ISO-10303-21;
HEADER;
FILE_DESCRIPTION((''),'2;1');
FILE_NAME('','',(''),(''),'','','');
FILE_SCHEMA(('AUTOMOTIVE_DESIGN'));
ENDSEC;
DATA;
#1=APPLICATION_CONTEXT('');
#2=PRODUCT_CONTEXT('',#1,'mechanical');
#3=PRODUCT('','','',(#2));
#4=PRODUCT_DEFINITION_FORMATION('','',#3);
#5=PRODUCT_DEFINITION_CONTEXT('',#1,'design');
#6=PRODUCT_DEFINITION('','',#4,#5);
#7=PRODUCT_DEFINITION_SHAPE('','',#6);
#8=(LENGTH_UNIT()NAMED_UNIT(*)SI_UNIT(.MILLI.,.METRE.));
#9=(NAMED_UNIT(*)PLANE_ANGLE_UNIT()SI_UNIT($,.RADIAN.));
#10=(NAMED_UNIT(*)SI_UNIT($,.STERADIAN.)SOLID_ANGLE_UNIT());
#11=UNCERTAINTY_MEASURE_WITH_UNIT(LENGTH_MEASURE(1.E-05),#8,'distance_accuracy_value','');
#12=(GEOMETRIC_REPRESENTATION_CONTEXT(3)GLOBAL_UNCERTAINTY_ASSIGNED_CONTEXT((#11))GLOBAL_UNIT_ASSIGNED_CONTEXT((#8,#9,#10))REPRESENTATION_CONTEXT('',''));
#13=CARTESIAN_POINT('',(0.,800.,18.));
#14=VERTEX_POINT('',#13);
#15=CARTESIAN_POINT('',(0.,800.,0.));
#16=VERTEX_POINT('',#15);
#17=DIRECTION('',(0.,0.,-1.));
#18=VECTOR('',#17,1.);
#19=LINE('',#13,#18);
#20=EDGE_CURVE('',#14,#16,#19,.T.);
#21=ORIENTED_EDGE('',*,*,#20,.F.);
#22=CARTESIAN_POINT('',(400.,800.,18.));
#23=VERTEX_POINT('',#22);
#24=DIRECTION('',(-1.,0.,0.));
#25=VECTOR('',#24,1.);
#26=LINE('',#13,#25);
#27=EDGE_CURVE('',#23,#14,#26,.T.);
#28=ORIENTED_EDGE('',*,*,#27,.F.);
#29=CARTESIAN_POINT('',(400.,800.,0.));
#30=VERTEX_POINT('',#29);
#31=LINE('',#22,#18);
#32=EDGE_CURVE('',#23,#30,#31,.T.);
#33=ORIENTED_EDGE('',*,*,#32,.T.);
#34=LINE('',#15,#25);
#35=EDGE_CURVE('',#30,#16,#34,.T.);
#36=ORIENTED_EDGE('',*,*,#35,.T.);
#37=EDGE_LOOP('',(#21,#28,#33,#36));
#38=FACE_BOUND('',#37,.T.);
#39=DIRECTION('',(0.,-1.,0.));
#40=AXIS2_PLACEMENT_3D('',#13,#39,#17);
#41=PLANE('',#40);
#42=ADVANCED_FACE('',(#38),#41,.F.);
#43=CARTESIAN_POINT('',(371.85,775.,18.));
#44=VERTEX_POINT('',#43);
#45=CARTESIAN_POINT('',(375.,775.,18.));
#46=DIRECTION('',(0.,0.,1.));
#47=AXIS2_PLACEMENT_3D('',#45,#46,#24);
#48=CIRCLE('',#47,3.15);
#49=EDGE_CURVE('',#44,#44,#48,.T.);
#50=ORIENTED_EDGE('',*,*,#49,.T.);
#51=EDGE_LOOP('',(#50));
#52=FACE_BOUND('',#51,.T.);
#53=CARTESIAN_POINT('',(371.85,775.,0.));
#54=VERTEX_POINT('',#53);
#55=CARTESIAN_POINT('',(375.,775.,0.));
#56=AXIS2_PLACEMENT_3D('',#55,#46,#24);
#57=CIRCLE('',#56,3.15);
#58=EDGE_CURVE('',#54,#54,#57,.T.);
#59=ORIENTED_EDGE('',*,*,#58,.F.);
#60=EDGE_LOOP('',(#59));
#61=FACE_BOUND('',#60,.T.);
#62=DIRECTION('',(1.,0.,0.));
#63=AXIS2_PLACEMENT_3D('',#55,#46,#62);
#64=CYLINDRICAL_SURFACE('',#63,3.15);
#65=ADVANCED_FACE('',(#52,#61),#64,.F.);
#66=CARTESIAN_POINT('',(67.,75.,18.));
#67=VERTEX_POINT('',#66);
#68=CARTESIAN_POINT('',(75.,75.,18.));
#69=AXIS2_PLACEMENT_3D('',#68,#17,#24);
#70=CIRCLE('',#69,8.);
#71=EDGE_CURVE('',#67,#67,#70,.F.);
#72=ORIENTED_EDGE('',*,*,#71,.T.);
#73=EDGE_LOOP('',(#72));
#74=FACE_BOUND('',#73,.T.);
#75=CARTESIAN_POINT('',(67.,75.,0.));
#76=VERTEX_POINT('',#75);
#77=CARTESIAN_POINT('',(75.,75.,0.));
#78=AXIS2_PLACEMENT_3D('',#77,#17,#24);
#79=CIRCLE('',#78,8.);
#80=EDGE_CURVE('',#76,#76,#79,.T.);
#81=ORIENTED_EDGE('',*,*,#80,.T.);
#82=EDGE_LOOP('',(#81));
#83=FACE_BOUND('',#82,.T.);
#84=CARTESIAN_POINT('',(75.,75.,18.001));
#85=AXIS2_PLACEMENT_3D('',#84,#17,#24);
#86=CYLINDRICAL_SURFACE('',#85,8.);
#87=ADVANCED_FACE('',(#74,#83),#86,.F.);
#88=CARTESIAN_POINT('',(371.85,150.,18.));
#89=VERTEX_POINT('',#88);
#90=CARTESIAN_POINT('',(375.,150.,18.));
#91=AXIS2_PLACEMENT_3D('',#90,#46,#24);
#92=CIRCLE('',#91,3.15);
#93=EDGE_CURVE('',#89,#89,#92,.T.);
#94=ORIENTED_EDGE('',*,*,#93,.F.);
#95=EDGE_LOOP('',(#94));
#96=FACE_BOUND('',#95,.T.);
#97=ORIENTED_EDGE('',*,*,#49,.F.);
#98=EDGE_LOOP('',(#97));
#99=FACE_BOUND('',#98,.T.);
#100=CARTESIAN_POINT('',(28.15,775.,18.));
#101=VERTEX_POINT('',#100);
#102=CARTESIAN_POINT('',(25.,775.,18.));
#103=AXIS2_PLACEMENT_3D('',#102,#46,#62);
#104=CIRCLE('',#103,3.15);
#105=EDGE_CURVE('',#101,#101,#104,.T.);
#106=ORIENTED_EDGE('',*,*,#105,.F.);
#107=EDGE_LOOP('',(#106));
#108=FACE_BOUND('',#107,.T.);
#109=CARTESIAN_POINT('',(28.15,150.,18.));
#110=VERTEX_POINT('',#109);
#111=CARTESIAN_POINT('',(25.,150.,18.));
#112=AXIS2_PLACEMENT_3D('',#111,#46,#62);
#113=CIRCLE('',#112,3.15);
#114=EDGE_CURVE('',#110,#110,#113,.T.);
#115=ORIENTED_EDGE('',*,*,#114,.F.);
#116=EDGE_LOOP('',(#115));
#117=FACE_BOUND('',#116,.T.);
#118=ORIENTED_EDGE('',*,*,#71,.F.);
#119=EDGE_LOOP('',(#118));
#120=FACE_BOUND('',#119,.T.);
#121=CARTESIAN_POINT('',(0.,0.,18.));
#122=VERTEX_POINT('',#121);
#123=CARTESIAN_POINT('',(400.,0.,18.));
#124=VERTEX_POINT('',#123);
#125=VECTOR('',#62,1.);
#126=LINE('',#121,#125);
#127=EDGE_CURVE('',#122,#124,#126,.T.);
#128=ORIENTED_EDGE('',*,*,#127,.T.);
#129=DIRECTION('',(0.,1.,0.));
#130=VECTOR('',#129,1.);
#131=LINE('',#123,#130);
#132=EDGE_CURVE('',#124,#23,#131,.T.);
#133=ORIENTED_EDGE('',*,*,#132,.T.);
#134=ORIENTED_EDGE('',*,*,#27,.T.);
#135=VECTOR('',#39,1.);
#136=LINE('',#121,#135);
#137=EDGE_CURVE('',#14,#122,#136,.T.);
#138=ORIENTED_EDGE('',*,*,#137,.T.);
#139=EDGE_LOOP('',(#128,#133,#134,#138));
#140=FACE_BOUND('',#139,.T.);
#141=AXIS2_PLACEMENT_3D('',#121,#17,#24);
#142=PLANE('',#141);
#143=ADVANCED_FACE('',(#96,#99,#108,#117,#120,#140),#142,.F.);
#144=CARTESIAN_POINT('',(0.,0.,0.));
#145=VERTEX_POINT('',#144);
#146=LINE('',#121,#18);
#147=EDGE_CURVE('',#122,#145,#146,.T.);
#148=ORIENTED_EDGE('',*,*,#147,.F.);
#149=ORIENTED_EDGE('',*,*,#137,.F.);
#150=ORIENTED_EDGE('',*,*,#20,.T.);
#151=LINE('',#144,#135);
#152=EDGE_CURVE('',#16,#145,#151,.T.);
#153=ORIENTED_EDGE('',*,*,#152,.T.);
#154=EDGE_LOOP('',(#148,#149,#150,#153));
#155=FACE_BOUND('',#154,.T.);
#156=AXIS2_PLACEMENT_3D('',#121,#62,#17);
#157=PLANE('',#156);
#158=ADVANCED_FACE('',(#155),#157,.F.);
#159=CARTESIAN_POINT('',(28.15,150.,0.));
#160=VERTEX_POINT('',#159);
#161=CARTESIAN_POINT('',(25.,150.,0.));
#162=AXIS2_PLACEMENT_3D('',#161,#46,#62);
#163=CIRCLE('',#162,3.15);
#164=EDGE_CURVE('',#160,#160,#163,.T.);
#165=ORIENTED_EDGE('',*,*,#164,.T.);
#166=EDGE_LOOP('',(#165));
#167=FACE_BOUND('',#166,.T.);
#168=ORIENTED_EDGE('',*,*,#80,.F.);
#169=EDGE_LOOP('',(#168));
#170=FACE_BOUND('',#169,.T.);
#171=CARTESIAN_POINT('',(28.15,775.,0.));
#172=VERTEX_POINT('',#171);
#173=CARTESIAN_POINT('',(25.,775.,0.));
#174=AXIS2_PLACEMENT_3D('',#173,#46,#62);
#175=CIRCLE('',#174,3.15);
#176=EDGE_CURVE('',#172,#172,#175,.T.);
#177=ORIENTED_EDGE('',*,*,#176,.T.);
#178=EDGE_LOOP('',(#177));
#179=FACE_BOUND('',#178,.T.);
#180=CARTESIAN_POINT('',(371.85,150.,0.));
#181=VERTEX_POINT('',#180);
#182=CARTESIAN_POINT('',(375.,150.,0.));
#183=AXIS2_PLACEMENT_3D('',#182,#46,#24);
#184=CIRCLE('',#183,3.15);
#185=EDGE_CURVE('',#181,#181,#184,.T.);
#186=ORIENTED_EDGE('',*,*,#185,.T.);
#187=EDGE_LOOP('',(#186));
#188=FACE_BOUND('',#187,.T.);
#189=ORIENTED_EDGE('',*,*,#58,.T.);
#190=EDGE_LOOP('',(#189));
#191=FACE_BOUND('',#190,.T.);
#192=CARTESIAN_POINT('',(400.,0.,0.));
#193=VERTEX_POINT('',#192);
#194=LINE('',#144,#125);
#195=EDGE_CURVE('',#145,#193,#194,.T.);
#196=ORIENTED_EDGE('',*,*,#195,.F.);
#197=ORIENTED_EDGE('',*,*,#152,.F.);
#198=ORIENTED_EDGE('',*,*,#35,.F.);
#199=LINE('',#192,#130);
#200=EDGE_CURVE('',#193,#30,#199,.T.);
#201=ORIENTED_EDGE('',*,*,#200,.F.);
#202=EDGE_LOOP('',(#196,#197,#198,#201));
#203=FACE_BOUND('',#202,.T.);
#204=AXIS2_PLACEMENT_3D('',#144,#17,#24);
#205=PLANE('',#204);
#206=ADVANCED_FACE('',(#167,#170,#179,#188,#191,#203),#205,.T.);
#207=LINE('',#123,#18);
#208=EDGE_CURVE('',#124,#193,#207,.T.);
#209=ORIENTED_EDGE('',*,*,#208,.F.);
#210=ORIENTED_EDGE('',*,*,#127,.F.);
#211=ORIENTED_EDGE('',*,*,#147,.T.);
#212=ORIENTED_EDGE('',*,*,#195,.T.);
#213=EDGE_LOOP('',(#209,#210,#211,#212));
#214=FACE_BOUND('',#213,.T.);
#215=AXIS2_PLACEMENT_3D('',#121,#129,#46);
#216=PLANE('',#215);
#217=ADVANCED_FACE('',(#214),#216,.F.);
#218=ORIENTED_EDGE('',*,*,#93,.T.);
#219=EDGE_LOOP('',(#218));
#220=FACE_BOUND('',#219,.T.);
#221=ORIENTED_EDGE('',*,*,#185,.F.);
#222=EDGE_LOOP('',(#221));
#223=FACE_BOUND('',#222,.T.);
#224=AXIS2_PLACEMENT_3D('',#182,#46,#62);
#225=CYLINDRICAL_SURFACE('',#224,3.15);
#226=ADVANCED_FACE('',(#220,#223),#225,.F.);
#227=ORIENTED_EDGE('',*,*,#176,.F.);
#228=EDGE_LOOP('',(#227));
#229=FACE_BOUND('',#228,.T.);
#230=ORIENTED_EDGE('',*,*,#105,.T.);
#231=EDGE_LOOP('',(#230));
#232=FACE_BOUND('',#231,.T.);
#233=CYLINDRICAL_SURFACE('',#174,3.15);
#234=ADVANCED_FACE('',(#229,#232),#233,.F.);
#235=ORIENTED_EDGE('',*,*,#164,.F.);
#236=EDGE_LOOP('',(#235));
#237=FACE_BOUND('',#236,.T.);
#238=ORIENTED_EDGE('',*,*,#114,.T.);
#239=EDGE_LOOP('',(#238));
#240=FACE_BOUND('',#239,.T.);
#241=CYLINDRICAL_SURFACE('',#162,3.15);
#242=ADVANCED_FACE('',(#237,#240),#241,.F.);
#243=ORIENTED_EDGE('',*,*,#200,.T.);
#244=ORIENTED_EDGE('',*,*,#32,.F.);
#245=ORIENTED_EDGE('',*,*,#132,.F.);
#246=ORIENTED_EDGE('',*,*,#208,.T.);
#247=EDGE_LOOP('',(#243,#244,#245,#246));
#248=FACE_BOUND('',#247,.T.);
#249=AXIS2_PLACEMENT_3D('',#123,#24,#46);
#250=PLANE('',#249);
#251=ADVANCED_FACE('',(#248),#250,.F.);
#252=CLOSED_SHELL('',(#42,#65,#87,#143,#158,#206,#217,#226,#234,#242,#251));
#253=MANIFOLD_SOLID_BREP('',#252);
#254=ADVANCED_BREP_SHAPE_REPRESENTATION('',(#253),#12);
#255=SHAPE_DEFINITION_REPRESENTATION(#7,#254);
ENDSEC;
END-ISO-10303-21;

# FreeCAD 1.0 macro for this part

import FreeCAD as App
import Part
import Sketcher

V = App.Vector

doc = App.newDocument("Part")
body = doc.addObject("PartDesign::Body", "Body")

# Sketch on XY plane
sketch1 = body.newObject("Sketcher::SketchObject", "Sketch")
sketch1.AttachmentSupport = (doc.getObject("XY_Plane"), [""])
sketch1.MapMode = "FlatFace"
sketch1.addGeometry(Part.LineSegment(V(0, 800, 0), V(0, 0, 0)), False)
sketch1.addGeometry(Part.LineSegment(V(0, 0, 0), V(400, 0, 0)), False)
sketch1.addGeometry(Part.LineSegment(V(400, 0, 0), V(400, 800, 0)), False)
sketch1.addGeometry(Part.LineSegment(V(400, 800, 0), V(0, 800, 0)), False)
sketch1.addConstraint(Sketcher.Constraint("Coincident", 0, 2, 1, 1))
sketch1.addConstraint(Sketcher.Constraint("Coincident", 1, 2, 2, 1))
sketch1.addConstraint(Sketcher.Constraint("Coincident", 2, 2, 3, 1))
sketch1.addConstraint(Sketcher.Constraint("Coincident", 3, 2, 0, 1))
sketch1.addConstraint(Sketcher.Constraint("Vertical", 0))
sketch1.addConstraint(Sketcher.Constraint("Horizontal", 1))
sketch1.addConstraint(Sketcher.Constraint("Vertical", 2))
sketch1.addConstraint(Sketcher.Constraint("Horizontal", 3))
sketch1.addConstraint(Sketcher.Constraint("Coincident", 0, 2, -1, 1))
sketch1.addConstraint(Sketcher.Constraint("DistanceX", 1, 1, 1, 2, 400.0))
sketch1.addConstraint(Sketcher.Constraint("DistanceY", 0, 2, 0, 1, 800.0))
pad1 = body.newObject("PartDesign::Pad", "Pad")
pad1.Profile = sketch1
pad1.Length = 18

# Sketch on XY plane
sketch2 = body.newObject("Sketcher::SketchObject", "Sketch001")
sketch2.AttachmentSupport = (doc.getObject("XY_Plane"), [""])
sketch2.MapMode = "FlatFace"
sketch2.AttachmentOffset = App.Placement(V(0, 0, 18), App.Rotation())
sketch2.addGeometry(Part.Circle(V(25, 775, 0), V(0, 0, 1), 3.1), False)
sketch2.addGeometry(Part.Circle(V(375, 775, 0), V(0, 0, 1), 3.1), False)
sketch2.addGeometry(Part.Circle(V(25, 150, 0), V(0, 0, 1), 3.1), False)
sketch2.addGeometry(Part.Circle(V(375, 150, 0), V(0, 0, 1), 3.1), False)
sketch2.addConstraint(Sketcher.Constraint("Equal", 0, 1))
sketch2.addConstraint(Sketcher.Constraint("Equal", 1, 2))
sketch2.addConstraint(Sketcher.Constraint("Equal", 2, 3))
sketch2.addConstraint(Sketcher.Constraint("Horizontal", 0, 3, 1, 3))
sketch2.addConstraint(Sketcher.Constraint("Horizontal", 2, 3, 3, 3))
sketch2.addConstraint(Sketcher.Constraint("Vertical", 0, 3, 2, 3))
sketch2.addConstraint(Sketcher.Constraint("Vertical", 1, 3, 3, 3))
sketch2.addConstraint(Sketcher.Constraint("Diameter", 0, 6.3))
sketch2.addConstraint(Sketcher.Constraint("DistanceX", -1, 1, 0, 3, 25.0))
sketch2.addConstraint(Sketcher.Constraint("DistanceY", -1, 1, 0, 3, 775.0))
sketch2.addConstraint(Sketcher.Constraint("DistanceX", -1, 1, 1, 3, 375.0))
sketch2.addConstraint(Sketcher.Constraint("DistanceY", -1, 1, 2, 3, 150.0))
pocket1 = body.newObject("PartDesign::Pocket", "Pocket")
pocket1.Profile = sketch2
pocket1.Type = "ThroughAll"

# Sketch on XY plane
sketch3 = body.newObject("Sketcher::SketchObject", "Sketch002")
sketch3.AttachmentSupport = (doc.getObject("XY_Plane"), [""])
sketch3.MapMode = "FlatFace"
sketch3.addGeometry(Part.Circle(V(75, 75, 0), V(0, 0, 1), 8), False)
sketch3.addConstraint(Sketcher.Constraint("Diameter", 0, 16.0))
sketch3.addConstraint(Sketcher.Constraint("DistanceX", -1, 1, 0, 3, 75.0))
sketch3.addConstraint(Sketcher.Constraint("DistanceY", -1, 1, 0, 3, 75.0))
pocket2 = body.newObject("PartDesign::Pocket", "Pocket001")
pocket2.Profile = sketch3
pocket2.Type = "UpToFirst"
pocket2.Reversed = True

doc.recompute()
